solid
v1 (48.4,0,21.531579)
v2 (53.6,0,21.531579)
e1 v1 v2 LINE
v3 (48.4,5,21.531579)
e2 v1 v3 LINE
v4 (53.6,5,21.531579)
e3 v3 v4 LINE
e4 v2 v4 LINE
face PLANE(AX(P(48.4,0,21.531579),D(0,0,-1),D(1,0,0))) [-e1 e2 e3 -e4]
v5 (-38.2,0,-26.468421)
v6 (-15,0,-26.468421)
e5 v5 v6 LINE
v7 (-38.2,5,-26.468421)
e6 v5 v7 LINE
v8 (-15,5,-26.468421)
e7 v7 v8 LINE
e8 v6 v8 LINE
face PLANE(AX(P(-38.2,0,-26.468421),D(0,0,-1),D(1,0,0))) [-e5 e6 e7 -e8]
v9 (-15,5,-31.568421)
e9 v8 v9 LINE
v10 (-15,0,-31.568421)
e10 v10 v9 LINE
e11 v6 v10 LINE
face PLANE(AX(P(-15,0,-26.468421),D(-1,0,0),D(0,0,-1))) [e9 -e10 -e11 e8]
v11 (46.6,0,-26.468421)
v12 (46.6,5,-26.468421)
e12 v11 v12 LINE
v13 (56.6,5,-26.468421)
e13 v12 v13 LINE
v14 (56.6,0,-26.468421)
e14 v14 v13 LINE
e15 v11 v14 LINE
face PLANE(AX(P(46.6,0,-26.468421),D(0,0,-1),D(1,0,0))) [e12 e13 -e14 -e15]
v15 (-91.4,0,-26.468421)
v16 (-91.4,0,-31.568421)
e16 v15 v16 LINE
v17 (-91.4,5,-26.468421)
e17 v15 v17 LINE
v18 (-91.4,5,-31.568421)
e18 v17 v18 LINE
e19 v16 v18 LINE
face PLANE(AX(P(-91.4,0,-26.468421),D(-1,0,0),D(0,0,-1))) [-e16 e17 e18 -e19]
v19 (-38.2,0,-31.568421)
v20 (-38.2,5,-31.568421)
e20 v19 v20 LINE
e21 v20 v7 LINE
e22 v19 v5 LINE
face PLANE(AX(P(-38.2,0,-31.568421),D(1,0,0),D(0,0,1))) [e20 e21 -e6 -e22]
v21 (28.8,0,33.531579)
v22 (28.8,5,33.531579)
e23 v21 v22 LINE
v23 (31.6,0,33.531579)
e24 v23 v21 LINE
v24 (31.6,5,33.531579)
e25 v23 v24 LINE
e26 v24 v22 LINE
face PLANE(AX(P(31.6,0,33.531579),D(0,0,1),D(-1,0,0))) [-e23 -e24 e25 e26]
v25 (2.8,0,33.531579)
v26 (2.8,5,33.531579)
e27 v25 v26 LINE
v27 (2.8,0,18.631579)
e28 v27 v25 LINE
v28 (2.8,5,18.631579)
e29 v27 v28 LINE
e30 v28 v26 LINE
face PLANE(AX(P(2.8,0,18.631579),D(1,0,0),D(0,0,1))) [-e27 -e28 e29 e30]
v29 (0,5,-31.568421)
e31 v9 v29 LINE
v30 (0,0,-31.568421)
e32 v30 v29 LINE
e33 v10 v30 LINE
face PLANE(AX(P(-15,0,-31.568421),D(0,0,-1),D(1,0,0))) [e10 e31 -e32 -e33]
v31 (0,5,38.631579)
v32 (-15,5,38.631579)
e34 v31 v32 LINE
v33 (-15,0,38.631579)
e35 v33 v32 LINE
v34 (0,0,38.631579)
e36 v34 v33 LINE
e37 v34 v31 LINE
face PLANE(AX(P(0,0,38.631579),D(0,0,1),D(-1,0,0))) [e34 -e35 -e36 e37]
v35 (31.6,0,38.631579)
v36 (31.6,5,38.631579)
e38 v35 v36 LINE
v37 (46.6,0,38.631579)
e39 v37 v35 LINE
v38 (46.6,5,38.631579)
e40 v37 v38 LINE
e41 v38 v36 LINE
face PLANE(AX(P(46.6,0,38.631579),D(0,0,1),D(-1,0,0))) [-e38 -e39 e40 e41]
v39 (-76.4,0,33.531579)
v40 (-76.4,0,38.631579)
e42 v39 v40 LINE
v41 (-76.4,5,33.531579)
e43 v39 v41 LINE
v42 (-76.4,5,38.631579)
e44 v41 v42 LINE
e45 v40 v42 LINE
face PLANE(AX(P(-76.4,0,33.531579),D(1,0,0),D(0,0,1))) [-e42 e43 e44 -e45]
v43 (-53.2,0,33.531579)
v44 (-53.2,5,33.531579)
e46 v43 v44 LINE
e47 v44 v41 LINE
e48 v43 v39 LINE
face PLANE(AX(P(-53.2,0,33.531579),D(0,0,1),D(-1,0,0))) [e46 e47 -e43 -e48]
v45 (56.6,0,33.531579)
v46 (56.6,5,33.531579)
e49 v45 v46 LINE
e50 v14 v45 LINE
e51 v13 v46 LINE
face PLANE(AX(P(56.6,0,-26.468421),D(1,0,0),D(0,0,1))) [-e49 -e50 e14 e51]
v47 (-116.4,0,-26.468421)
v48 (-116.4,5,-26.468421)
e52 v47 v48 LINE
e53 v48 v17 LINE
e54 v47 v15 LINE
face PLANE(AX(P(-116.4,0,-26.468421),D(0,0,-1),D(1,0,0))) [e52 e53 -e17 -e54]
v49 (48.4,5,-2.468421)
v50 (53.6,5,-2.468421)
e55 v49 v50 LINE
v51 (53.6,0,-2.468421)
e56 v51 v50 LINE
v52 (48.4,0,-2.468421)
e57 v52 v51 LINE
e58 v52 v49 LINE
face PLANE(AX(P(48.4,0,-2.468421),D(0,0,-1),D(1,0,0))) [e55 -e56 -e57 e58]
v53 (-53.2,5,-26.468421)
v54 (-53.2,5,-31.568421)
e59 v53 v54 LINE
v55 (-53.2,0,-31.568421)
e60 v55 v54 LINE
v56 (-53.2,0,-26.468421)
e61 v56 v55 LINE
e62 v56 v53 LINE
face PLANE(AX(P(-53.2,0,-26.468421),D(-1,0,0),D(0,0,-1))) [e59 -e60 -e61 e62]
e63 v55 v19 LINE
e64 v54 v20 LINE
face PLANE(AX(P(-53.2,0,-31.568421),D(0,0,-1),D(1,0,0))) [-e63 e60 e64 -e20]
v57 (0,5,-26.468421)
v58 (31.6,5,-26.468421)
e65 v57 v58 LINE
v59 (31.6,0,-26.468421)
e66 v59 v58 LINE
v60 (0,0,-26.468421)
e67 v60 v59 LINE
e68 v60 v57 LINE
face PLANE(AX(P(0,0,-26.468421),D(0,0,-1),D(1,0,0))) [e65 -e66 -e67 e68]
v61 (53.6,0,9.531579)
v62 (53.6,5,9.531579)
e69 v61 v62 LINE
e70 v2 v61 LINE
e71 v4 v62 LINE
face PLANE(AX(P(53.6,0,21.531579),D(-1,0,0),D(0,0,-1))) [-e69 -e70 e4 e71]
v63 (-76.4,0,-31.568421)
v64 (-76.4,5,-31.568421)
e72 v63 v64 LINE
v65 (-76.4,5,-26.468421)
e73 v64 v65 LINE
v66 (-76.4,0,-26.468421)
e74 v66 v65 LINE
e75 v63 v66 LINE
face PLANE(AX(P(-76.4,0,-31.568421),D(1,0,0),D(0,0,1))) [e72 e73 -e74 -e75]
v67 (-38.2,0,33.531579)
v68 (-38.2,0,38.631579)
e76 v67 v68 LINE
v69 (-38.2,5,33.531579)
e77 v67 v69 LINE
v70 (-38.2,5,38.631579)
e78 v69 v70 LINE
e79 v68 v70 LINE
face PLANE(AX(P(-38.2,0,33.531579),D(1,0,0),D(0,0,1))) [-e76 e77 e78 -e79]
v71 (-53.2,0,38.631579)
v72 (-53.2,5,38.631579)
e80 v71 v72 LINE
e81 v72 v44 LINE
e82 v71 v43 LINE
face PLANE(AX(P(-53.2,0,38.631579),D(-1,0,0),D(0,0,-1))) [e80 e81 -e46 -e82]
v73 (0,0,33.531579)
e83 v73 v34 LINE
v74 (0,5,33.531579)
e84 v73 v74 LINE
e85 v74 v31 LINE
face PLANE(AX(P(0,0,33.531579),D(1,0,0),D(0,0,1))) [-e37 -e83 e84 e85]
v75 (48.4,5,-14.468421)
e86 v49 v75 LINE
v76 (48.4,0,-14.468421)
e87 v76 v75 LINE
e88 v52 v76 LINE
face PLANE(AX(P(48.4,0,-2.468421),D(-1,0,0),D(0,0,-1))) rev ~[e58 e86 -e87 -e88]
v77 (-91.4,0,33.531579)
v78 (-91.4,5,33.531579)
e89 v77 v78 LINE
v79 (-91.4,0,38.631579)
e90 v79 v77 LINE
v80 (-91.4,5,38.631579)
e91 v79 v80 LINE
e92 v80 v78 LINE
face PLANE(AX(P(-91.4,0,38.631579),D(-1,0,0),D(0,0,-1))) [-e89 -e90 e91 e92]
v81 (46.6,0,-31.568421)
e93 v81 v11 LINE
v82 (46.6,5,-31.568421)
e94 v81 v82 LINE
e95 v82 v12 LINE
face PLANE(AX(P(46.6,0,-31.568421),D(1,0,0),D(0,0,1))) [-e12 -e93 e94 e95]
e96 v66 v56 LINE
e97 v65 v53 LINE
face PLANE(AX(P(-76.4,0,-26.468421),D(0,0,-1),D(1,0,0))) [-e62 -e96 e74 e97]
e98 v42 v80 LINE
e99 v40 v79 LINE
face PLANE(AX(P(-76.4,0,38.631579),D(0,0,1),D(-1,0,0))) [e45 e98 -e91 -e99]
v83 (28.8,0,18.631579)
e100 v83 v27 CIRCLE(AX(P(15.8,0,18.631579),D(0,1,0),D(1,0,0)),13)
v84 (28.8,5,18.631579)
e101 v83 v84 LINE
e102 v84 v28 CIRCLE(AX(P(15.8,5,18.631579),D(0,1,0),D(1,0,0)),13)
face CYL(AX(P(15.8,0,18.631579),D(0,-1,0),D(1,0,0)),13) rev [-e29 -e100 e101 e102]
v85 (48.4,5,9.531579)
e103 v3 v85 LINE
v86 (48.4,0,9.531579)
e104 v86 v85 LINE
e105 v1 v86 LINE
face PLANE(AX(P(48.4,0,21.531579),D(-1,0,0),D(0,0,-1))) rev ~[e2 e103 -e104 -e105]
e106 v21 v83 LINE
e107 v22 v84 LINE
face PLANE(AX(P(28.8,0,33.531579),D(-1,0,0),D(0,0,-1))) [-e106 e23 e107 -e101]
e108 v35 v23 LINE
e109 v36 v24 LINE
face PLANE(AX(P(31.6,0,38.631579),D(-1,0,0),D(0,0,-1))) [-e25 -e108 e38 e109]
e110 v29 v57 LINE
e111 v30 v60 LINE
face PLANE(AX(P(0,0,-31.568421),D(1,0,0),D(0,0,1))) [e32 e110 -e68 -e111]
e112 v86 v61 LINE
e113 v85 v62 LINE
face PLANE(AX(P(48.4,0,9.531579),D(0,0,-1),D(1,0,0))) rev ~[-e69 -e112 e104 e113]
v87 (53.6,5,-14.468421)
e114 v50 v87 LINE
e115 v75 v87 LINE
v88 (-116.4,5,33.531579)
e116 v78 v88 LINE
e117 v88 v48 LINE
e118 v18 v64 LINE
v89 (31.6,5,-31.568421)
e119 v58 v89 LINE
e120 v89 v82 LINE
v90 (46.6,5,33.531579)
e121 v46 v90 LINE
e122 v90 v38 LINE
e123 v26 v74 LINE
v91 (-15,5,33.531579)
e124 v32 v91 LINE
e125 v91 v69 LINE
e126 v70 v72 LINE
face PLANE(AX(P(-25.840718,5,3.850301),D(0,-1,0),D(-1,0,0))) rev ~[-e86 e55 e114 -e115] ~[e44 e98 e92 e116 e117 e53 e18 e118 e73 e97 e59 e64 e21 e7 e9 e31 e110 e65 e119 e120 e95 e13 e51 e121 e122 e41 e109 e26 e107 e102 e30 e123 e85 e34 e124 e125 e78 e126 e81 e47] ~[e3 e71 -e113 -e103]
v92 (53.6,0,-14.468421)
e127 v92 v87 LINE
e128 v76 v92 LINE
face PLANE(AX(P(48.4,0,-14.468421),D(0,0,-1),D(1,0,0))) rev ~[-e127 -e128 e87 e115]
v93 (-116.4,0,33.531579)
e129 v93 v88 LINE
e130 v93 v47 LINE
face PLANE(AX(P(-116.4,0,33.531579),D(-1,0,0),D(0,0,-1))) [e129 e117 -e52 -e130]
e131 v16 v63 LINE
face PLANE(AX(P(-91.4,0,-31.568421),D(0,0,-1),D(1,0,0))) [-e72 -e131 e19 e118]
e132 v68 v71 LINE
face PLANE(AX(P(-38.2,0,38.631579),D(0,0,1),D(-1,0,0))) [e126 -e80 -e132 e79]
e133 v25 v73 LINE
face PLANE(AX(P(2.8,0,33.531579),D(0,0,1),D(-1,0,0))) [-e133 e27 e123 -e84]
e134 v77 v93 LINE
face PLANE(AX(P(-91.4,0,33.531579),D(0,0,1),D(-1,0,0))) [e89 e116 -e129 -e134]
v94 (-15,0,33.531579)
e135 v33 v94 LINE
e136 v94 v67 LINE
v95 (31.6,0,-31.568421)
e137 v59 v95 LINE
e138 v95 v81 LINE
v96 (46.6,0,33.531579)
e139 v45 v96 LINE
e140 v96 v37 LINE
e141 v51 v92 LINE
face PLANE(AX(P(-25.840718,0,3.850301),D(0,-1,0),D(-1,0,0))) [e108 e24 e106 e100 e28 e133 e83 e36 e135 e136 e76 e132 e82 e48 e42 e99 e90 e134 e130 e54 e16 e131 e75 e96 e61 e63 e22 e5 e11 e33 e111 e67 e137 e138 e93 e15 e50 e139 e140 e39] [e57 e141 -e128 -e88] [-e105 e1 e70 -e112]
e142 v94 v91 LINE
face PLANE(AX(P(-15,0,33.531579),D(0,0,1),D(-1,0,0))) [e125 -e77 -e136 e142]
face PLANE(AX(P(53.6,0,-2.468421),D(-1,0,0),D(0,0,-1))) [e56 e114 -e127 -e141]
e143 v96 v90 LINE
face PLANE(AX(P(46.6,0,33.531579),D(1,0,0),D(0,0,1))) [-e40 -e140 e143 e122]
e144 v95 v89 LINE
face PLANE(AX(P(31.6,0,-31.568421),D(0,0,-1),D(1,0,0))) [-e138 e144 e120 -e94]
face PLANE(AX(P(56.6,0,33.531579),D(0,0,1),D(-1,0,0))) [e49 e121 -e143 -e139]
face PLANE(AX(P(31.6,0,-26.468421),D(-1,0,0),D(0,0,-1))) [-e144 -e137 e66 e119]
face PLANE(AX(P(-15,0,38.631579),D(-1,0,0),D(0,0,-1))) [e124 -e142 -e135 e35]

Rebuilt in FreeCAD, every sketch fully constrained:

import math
import FreeCAD as App
import Part
import Sketcher
from FreeCAD import Vector

doc = App.newDocument("Part")
body = doc.addObject("PartDesign::Body", "Body")

sketch1 = body.newObject("Sketcher::SketchObject", "Sketch")
sketch1.AttachmentSupport = (doc.getObject("XZ_Plane"), [""])
sketch1.MapMode = "FlatFace"
sketch1.addGeometry([
    Part.LineSegment(Vector(56.6, 33.5, 0), Vector(56.6, -26.5, 0)),
    Part.LineSegment(Vector(56.6, -26.5, 0), Vector(46.6, -26.5, 0)),
    Part.LineSegment(Vector(46.6, -26.5, 0), Vector(46.6, -31.6, 0)),
    Part.LineSegment(Vector(46.6, -31.6, 0), Vector(31.6, -31.6, 0)),
    Part.LineSegment(Vector(31.6, -31.6, 0), Vector(31.6, -26.5, 0)),
    Part.LineSegment(Vector(31.6, -26.5, 0), Vector(0, -26.5, 0)),
    Part.LineSegment(Vector(0, -26.5, 0), Vector(0, -31.6, 0)),
    Part.LineSegment(Vector(0, -31.6, 0), Vector(-15, -31.6, 0)),
    Part.LineSegment(Vector(-15, -31.6, 0), Vector(-15, -26.5, 0)),
    Part.LineSegment(Vector(-15, -26.5, 0), Vector(-38.2, -26.5, 0)),
    Part.LineSegment(Vector(-38.2, -26.5, 0), Vector(-38.2, -31.6, 0)),
    Part.LineSegment(Vector(-38.2, -31.6, 0), Vector(-53.2, -31.6, 0)),
    Part.LineSegment(Vector(-53.2, -31.6, 0), Vector(-53.2, -26.5, 0)),
    Part.LineSegment(Vector(-53.2, -26.5, 0), Vector(-76.4, -26.5, 0)),
    Part.LineSegment(Vector(-76.4, -26.5, 0), Vector(-76.4, -31.6, 0)),
    Part.LineSegment(Vector(-76.4, -31.6, 0), Vector(-91.4, -31.6, 0)),
    Part.LineSegment(Vector(-91.4, -31.6, 0), Vector(-91.4, -26.5, 0)),
    Part.LineSegment(Vector(-91.4, -26.5, 0), Vector(-116.4, -26.5, 0)),
    Part.LineSegment(Vector(-116.4, -26.5, 0), Vector(-116.4, 33.5, 0)),
    Part.LineSegment(Vector(-116.4, 33.5, 0), Vector(-91.4, 33.5, 0)),
    Part.LineSegment(Vector(-91.4, 33.5, 0), Vector(-91.4, 38.6, 0)),
    Part.LineSegment(Vector(-91.4, 38.6, 0), Vector(-76.4, 38.6, 0)),
    Part.LineSegment(Vector(-76.4, 38.6, 0), Vector(-76.4, 33.5, 0)),
    Part.LineSegment(Vector(-76.4, 33.5, 0), Vector(-53.2, 33.5, 0)),
    Part.LineSegment(Vector(-53.2, 33.5, 0), Vector(-53.2, 38.6, 0)),
    Part.LineSegment(Vector(-53.2, 38.6, 0), Vector(-38.2, 38.6, 0)),
    Part.LineSegment(Vector(-38.2, 38.6, 0), Vector(-38.2, 33.5, 0)),
    Part.LineSegment(Vector(-38.2, 33.5, 0), Vector(-15, 33.5, 0)),
    Part.LineSegment(Vector(-15, 33.5, 0), Vector(-15, 38.6, 0)),
    Part.LineSegment(Vector(-15, 38.6, 0), Vector(0, 38.6, 0)),
    Part.LineSegment(Vector(0, 38.6, 0), Vector(0, 33.5, 0)),
    Part.LineSegment(Vector(0, 33.5, 0), Vector(2.8, 33.5, 0)),
    Part.LineSegment(Vector(2.8, 33.5, 0), Vector(2.8, 18.6, 0)),
    Part.ArcOfCircle(Part.Circle(Vector(15.8, 18.6, 0), Vector(0, 0, 1), 13), math.radians(180), math.radians(360)),
    Part.LineSegment(Vector(28.8, 18.6, 0), Vector(28.8, 33.5, 0)),
    Part.LineSegment(Vector(28.8, 33.5, 0), Vector(31.6, 33.5, 0)),
    Part.LineSegment(Vector(31.6, 33.5, 0), Vector(31.6, 38.6, 0)),
    Part.LineSegment(Vector(31.6, 38.6, 0), Vector(46.6, 38.6, 0)),
    Part.LineSegment(Vector(46.6, 38.6, 0), Vector(46.6, 33.5, 0)),
    Part.LineSegment(Vector(46.6, 33.5, 0), Vector(56.6, 33.5, 0)),
    Part.LineSegment(Vector(48.4, 21.5, 0), Vector(48.4, 9.5, 0)),
    Part.LineSegment(Vector(48.4, 9.5, 0), Vector(53.6, 9.5, 0)),
    Part.LineSegment(Vector(53.6, 9.5, 0), Vector(53.6, 21.5, 0)),
    Part.LineSegment(Vector(53.6, 21.5, 0), Vector(48.4, 21.5, 0)),
    Part.LineSegment(Vector(48.4, -2.5, 0), Vector(48.4, -14.5, 0)),
    Part.LineSegment(Vector(48.4, -14.5, 0), Vector(53.6, -14.5, 0)),
    Part.LineSegment(Vector(53.6, -14.5, 0), Vector(53.6, -2.5, 0)),
    Part.LineSegment(Vector(53.6, -2.5, 0), Vector(48.4, -2.5, 0)),
], False)
sketch1.addConstraint([
    Sketcher.Constraint("Coincident", 0, 2, 1, 1),
    Sketcher.Constraint("Coincident", 1, 2, 2, 1),
    Sketcher.Constraint("Coincident", 2, 2, 3, 1),
    Sketcher.Constraint("Coincident", 3, 2, 4, 1),
    Sketcher.Constraint("Coincident", 4, 2, 5, 1),
    Sketcher.Constraint("Coincident", 5, 2, 6, 1),
    Sketcher.Constraint("Coincident", 6, 2, 7, 1),
    Sketcher.Constraint("Coincident", 7, 2, 8, 1),
    Sketcher.Constraint("Coincident", 8, 2, 9, 1),
    Sketcher.Constraint("Coincident", 9, 2, 10, 1),
    Sketcher.Constraint("Coincident", 10, 2, 11, 1),
    Sketcher.Constraint("Coincident", 11, 2, 12, 1),
    Sketcher.Constraint("Coincident", 12, 2, 13, 1),
    Sketcher.Constraint("Coincident", 13, 2, 14, 1),
    Sketcher.Constraint("Coincident", 14, 2, 15, 1),
    Sketcher.Constraint("Coincident", 15, 2, 16, 1),
    Sketcher.Constraint("Coincident", 16, 2, 17, 1),
    Sketcher.Constraint("Coincident", 17, 2, 18, 1),
    Sketcher.Constraint("Coincident", 18, 2, 19, 1),
    Sketcher.Constraint("Coincident", 19, 2, 20, 1),
    Sketcher.Constraint("Coincident", 20, 2, 21, 1),
    Sketcher.Constraint("Coincident", 21, 2, 22, 1),
    Sketcher.Constraint("Coincident", 22, 2, 23, 1),
    Sketcher.Constraint("Coincident", 23, 2, 24, 1),
    Sketcher.Constraint("Coincident", 24, 2, 25, 1),
    Sketcher.Constraint("Coincident", 25, 2, 26, 1),
    Sketcher.Constraint("Coincident", 26, 2, 27, 1),
    Sketcher.Constraint("Coincident", 27, 2, 28, 1),
    Sketcher.Constraint("Coincident", 28, 2, 29, 1),
    Sketcher.Constraint("Coincident", 29, 2, 30, 1),
    Sketcher.Constraint("Coincident", 30, 2, 31, 1),
    Sketcher.Constraint("Coincident", 31, 2, 32, 1),
    Sketcher.Constraint("Tangent", 32, 2, 33, 1),
    Sketcher.Constraint("Tangent", 33, 2, 34, 1),
    Sketcher.Constraint("Coincident", 34, 2, 35, 1),
    Sketcher.Constraint("Coincident", 35, 2, 36, 1),
    Sketcher.Constraint("Coincident", 36, 2, 37, 1),
    Sketcher.Constraint("Coincident", 37, 2, 38, 1),
    Sketcher.Constraint("Coincident", 38, 2, 39, 1),
    Sketcher.Constraint("Coincident", 39, 2, 0, 1),
    Sketcher.Constraint("Coincident", 40, 2, 41, 1),
    Sketcher.Constraint("Coincident", 41, 2, 42, 1),
    Sketcher.Constraint("Coincident", 42, 2, 43, 1),
    Sketcher.Constraint("Coincident", 43, 2, 40, 1),
    Sketcher.Constraint("Coincident", 44, 2, 45, 1),
    Sketcher.Constraint("Coincident", 45, 2, 46, 1),
    Sketcher.Constraint("Coincident", 46, 2, 47, 1),
    Sketcher.Constraint("Coincident", 47, 2, 44, 1),
    Sketcher.Constraint("Vertical", 0),
    Sketcher.Constraint("Horizontal", 1),
    Sketcher.Constraint("Vertical", 2),
    Sketcher.Constraint("Horizontal", 3),
    Sketcher.Constraint("Vertical", 4),
    Sketcher.Constraint("Horizontal", 5),
    Sketcher.Constraint("Vertical", 6),
    Sketcher.Constraint("Horizontal", 7),
    Sketcher.Constraint("Vertical", 8),
    Sketcher.Constraint("Horizontal", 9),
    Sketcher.Constraint("Vertical", 10),
    Sketcher.Constraint("Horizontal", 11),
    Sketcher.Constraint("Vertical", 12),
    Sketcher.Constraint("Horizontal", 13),
    Sketcher.Constraint("Vertical", 14),
    Sketcher.Constraint("Horizontal", 15),
    Sketcher.Constraint("Vertical", 16),
    Sketcher.Constraint("Horizontal", 17),
    Sketcher.Constraint("Vertical", 18),
    Sketcher.Constraint("Horizontal", 19),
    Sketcher.Constraint("Vertical", 20),
    Sketcher.Constraint("Horizontal", 21),
    Sketcher.Constraint("Vertical", 22),
    Sketcher.Constraint("Horizontal", 23),
    Sketcher.Constraint("Vertical", 24),
    Sketcher.Constraint("Horizontal", 25),
    Sketcher.Constraint("Vertical", 26),
    Sketcher.Constraint("Horizontal", 27),
    Sketcher.Constraint("Vertical", 28),
    Sketcher.Constraint("Horizontal", 29),
    Sketcher.Constraint("Vertical", 30),
    Sketcher.Constraint("Horizontal", 31),
    Sketcher.Constraint("Vertical", 32),
    Sketcher.Constraint("Vertical", 34),
    Sketcher.Constraint("Horizontal", 35),
    Sketcher.Constraint("Vertical", 36),
    Sketcher.Constraint("Horizontal", 37),
    Sketcher.Constraint("Vertical", 38),
    Sketcher.Constraint("Horizontal", 39),
    Sketcher.Constraint("Vertical", 40),
    Sketcher.Constraint("Horizontal", 41),
    Sketcher.Constraint("Vertical", 42),
    Sketcher.Constraint("Horizontal", 43),
    Sketcher.Constraint("Vertical", 44),
    Sketcher.Constraint("Horizontal", 45),
    Sketcher.Constraint("Vertical", 46),
    Sketcher.Constraint("Horizontal", 47),
    Sketcher.Constraint("PointOnObject", 5, 2, -2),
    Sketcher.Constraint("PointOnObject", 29, 2, -2),
    Sketcher.Constraint("Horizontal", 1, 2, 4, 2),
    Sketcher.Constraint("Horizontal", 3, 2, 6, 2),
    Sketcher.Constraint("Horizontal", 5, 2, 8, 2),
    Sketcher.Constraint("Horizontal", 7, 2, 10, 2),
    Sketcher.Constraint("Horizontal", 9, 2, 12, 2),
    Sketcher.Constraint("Horizontal", 11, 2, 14, 2),
    Sketcher.Constraint("Horizontal", 13, 2, 16, 2),
    Sketcher.Constraint("Horizontal", 19, 2, 22, 2),
    Sketcher.Constraint("Horizontal", 21, 2, 24, 2),
    Sketcher.Constraint("Horizontal", 23, 2, 26, 2),
    Sketcher.Constraint("Horizontal", 25, 2, 28, 2),
    Sketcher.Constraint("Horizontal", 27, 2, 30, 2),
    Sketcher.Constraint("Horizontal", 31, 2, 34, 2),
    Sketcher.Constraint("Horizontal", 29, 2, 36, 2),
    Sketcher.Constraint("Horizontal", 35, 2, 38, 2),
    Sketcher.Constraint("Vertical", 16, 2, 19, 2),
    Sketcher.Constraint("Vertical", 14, 2, 21, 2),
    Sketcher.Constraint("Vertical", 12, 2, 23, 2),
    Sketcher.Constraint("Vertical", 10, 2, 25, 2),
    Sketcher.Constraint("Vertical", 8, 2, 27, 2),
    Sketcher.Constraint("Vertical", 4, 2, 35, 2),
    Sketcher.Constraint("Vertical", 2, 2, 37, 2),
    Sketcher.Constraint("Vertical", 43, 2, 44, 2),
    Sketcher.Constraint("Vertical", 42, 2, 45, 2),
    Sketcher.Constraint("Equal", 3, 7),
    Sketcher.Constraint("Equal", 7, 11),
    Sketcher.Constraint("Equal", 9, 13),
    Sketcher.Constraint("Equal", 11, 15),
    Sketcher.Constraint("Equal", 31, 35),
    Sketcher.Constraint("Equal", 16, 20),
    Sketcher.Constraint("Equal", 42, 44),
    Sketcher.Constraint("Radius", 33, 13.0),
    Sketcher.Constraint("DistanceX", 1, 2, 1, 1, 10.0),
    Sketcher.Constraint("DistanceX", 3, 2, 3, 1, 15.0),
    Sketcher.Constraint("DistanceX", 17, 2, 17, 1, 25.0),
    Sketcher.Constraint("DistanceY", 0, 2, 0, 1, 60.0),
    Sketcher.Constraint("DistanceY", 40, 2, 40, 1, 12.0),
    Sketcher.Constraint("DistanceX", 5, 2, 5, 1, 31.6),
    Sketcher.Constraint("DistanceX", 9, 2, 9, 1, 23.2),
    Sketcher.Constraint("DistanceX", 41, 1, 41, 2, 5.2),
    Sketcher.Constraint("DistanceY", 2, 2, 2, 1, 5.1),
    Sketcher.Constraint("DistanceY", 32, 2, 32, 1, 14.9),
    Sketcher.Constraint("DistanceY", 40, 2, 38, 2, 24.0),
    Sketcher.Constraint("DistanceX", 41, 2, 39, 2, 3.0),
    Sketcher.Constraint("DistanceY", 1, 2, 44, 2, 12.0),
    Sketcher.Constraint("DistanceY", -1, 1, 33, 3, 18.631579),
])
pad1 = body.newObject("PartDesign::Pad", "Pad")
pad1.Profile = sketch1
pad1.Length = 5
pad1.Reversed = True

doc.recompute()
